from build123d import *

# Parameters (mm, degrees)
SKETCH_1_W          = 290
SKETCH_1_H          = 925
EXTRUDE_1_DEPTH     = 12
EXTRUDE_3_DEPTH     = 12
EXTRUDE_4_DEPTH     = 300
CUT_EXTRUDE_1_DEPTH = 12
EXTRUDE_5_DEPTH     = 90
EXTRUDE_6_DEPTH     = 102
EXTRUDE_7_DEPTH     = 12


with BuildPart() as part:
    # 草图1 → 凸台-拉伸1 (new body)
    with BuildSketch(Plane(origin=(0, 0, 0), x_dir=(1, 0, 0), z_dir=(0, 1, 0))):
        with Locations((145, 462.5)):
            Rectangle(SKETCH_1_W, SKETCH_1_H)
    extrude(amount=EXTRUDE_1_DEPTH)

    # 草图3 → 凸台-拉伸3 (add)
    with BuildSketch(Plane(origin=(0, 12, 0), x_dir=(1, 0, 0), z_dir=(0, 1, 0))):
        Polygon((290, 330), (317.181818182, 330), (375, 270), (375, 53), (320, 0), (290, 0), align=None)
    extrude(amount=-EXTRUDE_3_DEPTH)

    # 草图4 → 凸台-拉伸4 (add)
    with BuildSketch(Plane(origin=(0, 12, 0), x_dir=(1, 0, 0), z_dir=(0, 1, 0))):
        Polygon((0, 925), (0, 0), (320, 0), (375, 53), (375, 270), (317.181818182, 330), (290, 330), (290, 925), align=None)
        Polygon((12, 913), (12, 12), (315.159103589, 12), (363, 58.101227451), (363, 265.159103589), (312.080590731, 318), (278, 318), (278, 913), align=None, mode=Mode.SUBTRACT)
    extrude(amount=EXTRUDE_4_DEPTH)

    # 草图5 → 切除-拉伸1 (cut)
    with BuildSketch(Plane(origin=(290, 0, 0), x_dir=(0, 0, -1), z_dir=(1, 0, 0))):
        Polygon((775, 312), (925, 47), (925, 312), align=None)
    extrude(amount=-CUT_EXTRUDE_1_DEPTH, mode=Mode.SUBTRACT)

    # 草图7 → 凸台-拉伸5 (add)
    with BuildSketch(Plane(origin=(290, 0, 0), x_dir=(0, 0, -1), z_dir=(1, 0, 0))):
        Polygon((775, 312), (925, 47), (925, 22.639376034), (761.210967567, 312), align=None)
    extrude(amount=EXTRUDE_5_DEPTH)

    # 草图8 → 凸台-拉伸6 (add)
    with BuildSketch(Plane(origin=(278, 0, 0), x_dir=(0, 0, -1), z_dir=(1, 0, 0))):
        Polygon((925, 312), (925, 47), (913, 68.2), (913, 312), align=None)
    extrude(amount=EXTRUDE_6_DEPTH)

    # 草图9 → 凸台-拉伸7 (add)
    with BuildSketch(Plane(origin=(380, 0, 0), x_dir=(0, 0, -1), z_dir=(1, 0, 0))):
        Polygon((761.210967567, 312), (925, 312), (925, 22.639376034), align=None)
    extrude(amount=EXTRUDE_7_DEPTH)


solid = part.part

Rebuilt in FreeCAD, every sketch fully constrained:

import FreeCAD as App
import Part
import Sketcher

V = App.Vector
Q = App.Units.Quantity

doc = App.newDocument("Part")
body = doc.addObject("PartDesign::Body", "Body")

sketch1 = body.newObject("Sketcher::SketchObject", "Sketch")
sketch1.AttachmentSupport = (doc.getObject("XZ_Plane"), [""])
sketch1.MapMode = "FlatFace"
sketch1.addGeometry(Part.LineSegment(V(0, -925, 0), V(0, 0, 0)), False)
sketch1.addGeometry(Part.LineSegment(V(0, 0, 0), V(290, 0, 0)), False)
sketch1.addGeometry(Part.LineSegment(V(290, 0, 0), V(290, -925, 0)), False)
sketch1.addGeometry(Part.LineSegment(V(290, -925, 0), V(0, -925, 0)), False)
sketch1.addConstraint(Sketcher.Constraint("Coincident", 0, 2, 1, 1))
sketch1.addConstraint(Sketcher.Constraint("Coincident", 1, 2, 2, 1))
sketch1.addConstraint(Sketcher.Constraint("Coincident", 2, 2, 3, 1))
sketch1.addConstraint(Sketcher.Constraint("Coincident", 3, 2, 0, 1))
sketch1.addConstraint(Sketcher.Constraint("Vertical", 0))
sketch1.addConstraint(Sketcher.Constraint("Horizontal", 1))
sketch1.addConstraint(Sketcher.Constraint("Vertical", 2))
sketch1.addConstraint(Sketcher.Constraint("Horizontal", 3))
sketch1.addConstraint(Sketcher.Constraint("Coincident", 0, 2, -1, 1))
sketch1.addConstraint(Sketcher.Constraint("DistanceX", 1, 1, 1, 2, Q("290 mm")))
sketch1.addConstraint(Sketcher.Constraint("DistanceY", 0, 1, 0, 2, Q("925 mm")))
pad1 = body.newObject("PartDesign::Pad", "Pad")
pad1.Profile = sketch1
pad1.Length = 12
pad1.Reversed = True

sketch2 = body.newObject("Sketcher::SketchObject", "Sketch001")
sketch2.AttachmentSupport = (doc.getObject("XZ_Plane"), [""])
sketch2.MapMode = "FlatFace"
sketch2.AttachmentOffset = App.Placement(V(0, 0, -12), App.Rotation())
sketch2.addGeometry(Part.LineSegment(V(317.181818, -330, 0), V(290, -330, 0)), False)
sketch2.addGeometry(Part.LineSegment(V(290, -330, 0), V(290, 0, 0)), False)
sketch2.addGeometry(Part.LineSegment(V(290, 0, 0), V(320, 0, 0)), False)
sketch2.addGeometry(Part.LineSegment(V(320, 0, 0), V(375, -53, 0)), False)
sketch2.addGeometry(Part.LineSegment(V(375, -53, 0), V(375, -270, 0)), False)
sketch2.addGeometry(Part.LineSegment(V(375, -270, 0), V(317.181818, -330, 0)), False)
sketch2.addConstraint(Sketcher.Constraint("Coincident", 0, 2, 1, 1))
sketch2.addConstraint(Sketcher.Constraint("Coincident", 1, 2, 2, 1))
sketch2.addConstraint(Sketcher.Constraint("Coincident", 2, 2, 3, 1))
sketch2.addConstraint(Sketcher.Constraint("Coincident", 3, 2, 4, 1))
sketch2.addConstraint(Sketcher.Constraint("Coincident", 4, 2, 5, 1))
sketch2.addConstraint(Sketcher.Constraint("Coincident", 5, 2, 0, 1))
sketch2.addConstraint(Sketcher.Constraint("Horizontal", 0))
sketch2.addConstraint(Sketcher.Constraint("Vertical", 1))
sketch2.addConstraint(Sketcher.Constraint("Horizontal", 2))
sketch2.addConstraint(Sketcher.Constraint("Vertical", 4))
sketch2.addConstraint(Sketcher.Constraint("PointOnObject", 1, 2, -1))
sketch2.addConstraint(Sketcher.Constraint("Perpendicular", 3, 5))
sketch2.addConstraint(Sketcher.Constraint("DistanceX", 2, 1, 2, 2, Q("30 mm")))
sketch2.addConstraint(Sketcher.Constraint("DistanceY", 1, 1, 1, 2, Q("330 mm")))
sketch2.addConstraint(Sketcher.Constraint("DistanceY", 4, 2, 4, 1, Q("217 mm")))
sketch2.addConstraint(Sketcher.Constraint("DistanceX", -1, 1, 0, 2, Q("290 mm")))
sketch2.addConstraint(Sketcher.Constraint("DistanceX", -1, 1, 3, 2, Q("375 mm")))
sketch2.addConstraint(Sketcher.Constraint("DistanceY", 3, 2, -1, 1, Q("53 mm")))
pad2 = body.newObject("PartDesign::Pad", "Pad001")
pad2.Profile = sketch2
pad2.Length = 12

sketch3 = body.newObject("Sketcher::SketchObject", "Sketch002")
sketch3.AttachmentSupport = (doc.getObject("XZ_Plane"), [""])
sketch3.MapMode = "FlatFace"
sketch3.AttachmentOffset = App.Placement(V(0, 0, -12), App.Rotation())
sketch3.addGeometry(Part.LineSegment(V(0, -925, 0), V(0, 0, 0)), False)
sketch3.addGeometry(Part.LineSegment(V(0, 0, 0), V(320, 0, 0)), False)
sketch3.addGeometry(Part.LineSegment(V(320, 0, 0), V(375, -53, 0)), False)
sketch3.addGeometry(Part.LineSegment(V(375, -53, 0), V(375, -270, 0)), False)
sketch3.addGeometry(Part.LineSegment(V(375, -270, 0), V(317.181818, -330, 0)), False)
sketch3.addGeometry(Part.LineSegment(V(317.181818, -330, 0), V(290, -330, 0)), False)
sketch3.addGeometry(Part.LineSegment(V(290, -330, 0), V(290, -925, 0)), False)
sketch3.addGeometry(Part.LineSegment(V(290, -925, 0), V(0, -925, 0)), False)
sketch3.addGeometry(Part.LineSegment(V(12, -12, 0), V(12, -913, 0)), False)
sketch3.addGeometry(Part.LineSegment(V(12, -913, 0), V(278, -913, 0)), False)
sketch3.addGeometry(Part.LineSegment(V(278, -913, 0), V(278, -318, 0)), False)
sketch3.addGeometry(Part.LineSegment(V(278, -318, 0), V(312.080591, -318, 0)), False)
sketch3.addGeometry(Part.LineSegment(V(312.080591, -318, 0), V(363, -265.159104, 0)), False)
sketch3.addGeometry(Part.LineSegment(V(363, -265.159104, 0), V(363, -58.101227, 0)), False)
sketch3.addGeometry(Part.LineSegment(V(363, -58.101227, 0), V(315.159104, -12, 0)), False)
sketch3.addGeometry(Part.LineSegment(V(315.159104, -12, 0), V(12, -12, 0)), False)
sketch3.addConstraint(Sketcher.Constraint("Coincident", 0, 2, 1, 1))
sketch3.addConstraint(Sketcher.Constraint("Coincident", 1, 2, 2, 1))
sketch3.addConstraint(Sketcher.Constraint("Coincident", 2, 2, 3, 1))
sketch3.addConstraint(Sketcher.Constraint("Coincident", 3, 2, 4, 1))
sketch3.addConstraint(Sketcher.Constraint("Coincident", 4, 2, 5, 1))
sketch3.addConstraint(Sketcher.Constraint("Coincident", 5, 2, 6, 1))
sketch3.addConstraint(Sketcher.Constraint("Coincident", 6, 2, 7, 1))
sketch3.addConstraint(Sketcher.Constraint("Coincident", 7, 2, 0, 1))
sketch3.addConstraint(Sketcher.Constraint("Coincident", 8, 2, 9, 1))
sketch3.addConstraint(Sketcher.Constraint("Coincident", 9, 2, 10, 1))
sketch3.addConstraint(Sketcher.Constraint("Coincident", 10, 2, 11, 1))
sketch3.addConstraint(Sketcher.Constraint("Coincident", 11, 2, 12, 1))
sketch3.addConstraint(Sketcher.Constraint("Coincident", 12, 2, 13, 1))
sketch3.addConstraint(Sketcher.Constraint("Coincident", 13, 2, 14, 1))
sketch3.addConstraint(Sketcher.Constraint("Coincident", 14, 2, 15, 1))
sketch3.addConstraint(Sketcher.Constraint("Coincident", 15, 2, 8, 1))
sketch3.addConstraint(Sketcher.Constraint("Vertical", 0))
sketch3.addConstraint(Sketcher.Constraint("Horizontal", 1))
sketch3.addConstraint(Sketcher.Constraint("Vertical", 3))
sketch3.addConstraint(Sketcher.Constraint("Horizontal", 5))
sketch3.addConstraint(Sketcher.Constraint("Vertical", 6))
sketch3.addConstraint(Sketcher.Constraint("Horizontal", 7))
sketch3.addConstraint(Sketcher.Constraint("Vertical", 8))
sketch3.addConstraint(Sketcher.Constraint("Horizontal", 9))
sketch3.addConstraint(Sketcher.Constraint("Vertical", 10))
sketch3.addConstraint(Sketcher.Constraint("Horizontal", 11))
sketch3.addConstraint(Sketcher.Constraint("Vertical", 13))
sketch3.addConstraint(Sketcher.Constraint("Horizontal", 15))
sketch3.addConstraint(Sketcher.Constraint("Coincident", 0, 2, -1, 1))
sketch3.addConstraint(Sketcher.Constraint("Perpendicular", 2, 4))
sketch3.addConstraint(Sketcher.Constraint("Parallel", 4, 12))
sketch3.addConstraint(Sketcher.Constraint("Perpendicular", 12, 14))
sketch3.addConstraint(Sketcher.Constraint("Equal", 6, 10))
sketch3.addConstraint(Sketcher.Constraint("DistanceX", 1, 1, 1, 2, Q("320 mm")))
sketch3.addConstraint(Sketcher.Constraint("DistanceX", 7, 2, 7, 1, Q("290 mm")))
sketch3.addConstraint(Sketcher.Constraint("DistanceX", 9, 1, 9, 2, Q("266 mm")))
sketch3.addConstraint(Sketcher.Constraint("DistanceY", 0, 1, 0, 2, Q("925 mm")))
sketch3.addConstraint(Sketcher.Constraint("DistanceY", 3, 2, 3, 1, Q("217 mm")))
sketch3.addConstraint(Sketcher.Constraint("DistanceY", 6, 2, 6, 1, Q("595 mm")))
sketch3.addConstraint(Sketcher.Constraint("DistanceY", 8, 2, 8, 1, Q("901 mm")))
sketch3.addConstraint(Sketcher.Constraint("DistanceX", -1, 1, 2, 2, Q("375 mm")))
sketch3.addConstraint(Sketcher.Constraint("DistanceY", 2, 2, -1, 1, Q("53 mm")))
sketch3.addConstraint(Sketcher.Constraint("DistanceX", -1, 1, 8, 2, Q("12 mm")))
sketch3.addConstraint(Sketcher.Constraint("DistanceY", 8, 2, -1, 1, Q("913 mm")))
sketch3.addConstraint(Sketcher.Constraint("DistanceX", -1, 1, 12, 2, Q("363 mm")))
sketch3.addConstraint(Sketcher.Constraint("Distance", 14, Q("66.438502 mm")))
sketch3.addConstraint(Sketcher.Constraint("DistanceX", 11, 1, 11, 2, Q("34.080591 mm")))
pad3 = body.newObject("PartDesign::Pad", "Pad002")
pad3.Profile = sketch3
pad3.Length = 300
pad3.Reversed = True

sketch4 = body.newObject("Sketcher::SketchObject", "Sketch003")
sketch4.AttachmentSupport = (doc.getObject("YZ_Plane"), [""])
sketch4.MapMode = "FlatFace"
sketch4.AttachmentOffset = App.Placement(V(0, 0, 290), App.Rotation())
sketch4.addGeometry(Part.LineSegment(V(312, -775, 0), V(47, -925, 0)), False)
sketch4.addGeometry(Part.LineSegment(V(47, -925, 0), V(312, -925, 0)), False)
sketch4.addGeometry(Part.LineSegment(V(312, -925, 0), V(312, -775, 0)), False)
sketch4.addConstraint(Sketcher.Constraint("Coincident", 0, 2, 1, 1))
sketch4.addConstraint(Sketcher.Constraint("Coincident", 1, 2, 2, 1))
sketch4.addConstraint(Sketcher.Constraint("Coincident", 2, 2, 0, 1))
sketch4.addConstraint(Sketcher.Constraint("Horizontal", 1))
sketch4.addConstraint(Sketcher.Constraint("Vertical", 2))
sketch4.addConstraint(Sketcher.Constraint("DistanceX", 1, 1, 1, 2, Q("265 mm")))
sketch4.addConstraint(Sketcher.Constraint("DistanceY", 2, 1, 2, 2, Q("150 mm")))
sketch4.addConstraint(Sketcher.Constraint("DistanceX", -1, 1, 0, 2, Q("47 mm")))
sketch4.addConstraint(Sketcher.Constraint("DistanceY", 0, 2, -1, 1, Q("925 mm")))
pocket1 = body.newObject("PartDesign::Pocket", "Pocket")
pocket1.Profile = sketch4
pocket1.Length = 12

sketch5 = body.newObject("Sketcher::SketchObject", "Sketch004")
sketch5.AttachmentSupport = (doc.getObject("YZ_Plane"), [""])
sketch5.MapMode = "FlatFace"
sketch5.AttachmentOffset = App.Placement(V(0, 0, 290), App.Rotation())
sketch5.addGeometry(Part.LineSegment(V(47, -925, 0), V(312, -775, 0)), False)
sketch5.addGeometry(Part.LineSegment(V(312, -775, 0), V(312, -761.210968, 0)), False)
sketch5.addGeometry(Part.LineSegment(V(312, -761.210968, 0), V(22.639376, -925, 0)), False)
sketch5.addGeometry(Part.LineSegment(V(22.639376, -925, 0), V(47, -925, 0)), False)
sketch5.addConstraint(Sketcher.Constraint("Coincident", 0, 2, 1, 1))
sketch5.addConstraint(Sketcher.Constraint("Coincident", 1, 2, 2, 1))
sketch5.addConstraint(Sketcher.Constraint("Coincident", 2, 2, 3, 1))
sketch5.addConstraint(Sketcher.Constraint("Coincident", 3, 2, 0, 1))
sketch5.addConstraint(Sketcher.Constraint("Vertical", 1))
sketch5.addConstraint(Sketcher.Constraint("Horizontal", 3))
sketch5.addConstraint(Sketcher.Constraint("Parallel", 0, 2))
sketch5.addConstraint(Sketcher.Constraint("DistanceX", -1, 1, 0, 2, Q("312 mm")))
sketch5.addConstraint(Sketcher.Constraint("DistanceY", 0, 2, -1, 1, Q("775 mm")))
sketch5.addConstraint(Sketcher.Constraint("DistanceY", 2, 2, -1, 1, Q("925 mm")))
sketch5.addConstraint(Sketcher.Constraint("DistanceX", -1, 1, 3, 2, Q("47 mm")))
sketch5.addConstraint(Sketcher.Constraint("DistanceX", 3, 1, 3, 2, Q("24.360624 mm")))
pad4 = body.newObject("PartDesign::Pad", "Pad003")
pad4.Profile = sketch5
pad4.Length = 90

sketch6 = body.newObject("Sketcher::SketchObject", "Sketch005")
sketch6.AttachmentSupport = (doc.getObject("YZ_Plane"), [""])
sketch6.MapMode = "FlatFace"
sketch6.AttachmentOffset = App.Placement(V(0, 0, 278), App.Rotation())
sketch6.addGeometry(Part.LineSegment(V(47, -925, 0), V(312, -925, 0)), False)
sketch6.addGeometry(Part.LineSegment(V(312, -925, 0), V(312, -913, 0)), False)
sketch6.addGeometry(Part.LineSegment(V(312, -913, 0), V(68.2, -913, 0)), False)
sketch6.addGeometry(Part.LineSegment(V(68.2, -913, 0), V(47, -925, 0)), False)
sketch6.addConstraint(Sketcher.Constraint("Coincident", 0, 2, 1, 1))
sketch6.addConstraint(Sketcher.Constraint("Coincident", 1, 2, 2, 1))
sketch6.addConstraint(Sketcher.Constraint("Coincident", 2, 2, 3, 1))
sketch6.addConstraint(Sketcher.Constraint("Coincident", 3, 2, 0, 1))
sketch6.addConstraint(Sketcher.Constraint("Horizontal", 0))
sketch6.addConstraint(Sketcher.Constraint("Vertical", 1))
sketch6.addConstraint(Sketcher.Constraint("Horizontal", 2))
sketch6.addConstraint(Sketcher.Constraint("DistanceX", 0, 1, 0, 2, Q("265 mm")))
sketch6.addConstraint(Sketcher.Constraint("DistanceY", 1, 1, 1, 2, Q("12 mm")))
sketch6.addConstraint(Sketcher.Constraint("DistanceX", 2, 2, 2, 1, Q("243.8 mm")))
sketch6.addConstraint(Sketcher.Constraint("DistanceX", -1, 1, 0, 2, Q("312 mm")))
sketch6.addConstraint(Sketcher.Constraint("DistanceY", 0, 2, -1, 1, Q("925 mm")))
pad5 = body.newObject("PartDesign::Pad", "Pad004")
pad5.Profile = sketch6
pad5.Length = 102

sketch7 = body.newObject("Sketcher::SketchObject", "Sketch006")
sketch7.AttachmentSupport = (doc.getObject("YZ_Plane"), [""])
sketch7.MapMode = "FlatFace"
sketch7.AttachmentOffset = App.Placement(V(0, 0, 380), App.Rotation())
sketch7.addGeometry(Part.LineSegment(V(312, -925, 0), V(312, -761.210968, 0)), False)
sketch7.addGeometry(Part.LineSegment(V(312, -761.210968, 0), V(22.639376, -925, 0)), False)
sketch7.addGeometry(Part.LineSegment(V(22.639376, -925, 0), V(312, -925, 0)), False)
sketch7.addConstraint(Sketcher.Constraint("Coincident", 0, 2, 1, 1))
sketch7.addConstraint(Sketcher.Constraint("Coincident", 1, 2, 2, 1))
sketch7.addConstraint(Sketcher.Constraint("Coincident", 2, 2, 0, 1))
sketch7.addConstraint(Sketcher.Constraint("Vertical", 0))
sketch7.addConstraint(Sketcher.Constraint("Horizontal", 2))
sketch7.addConstraint(Sketcher.Constraint("DistanceX", -1, 1, 0, 2, Q("312 mm")))
sketch7.addConstraint(Sketcher.Constraint("DistanceY", 1, 2, -1, 1, Q("925 mm")))
sketch7.addConstraint(Sketcher.Constraint("DistanceX", 2, 1, 2, 2, Q("289.360624 mm")))
sketch7.addConstraint(Sketcher.Constraint("DistanceY", 0, 1, 0, 2, Q("163.789032 mm")))
pad6 = body.newObject("PartDesign::Pad", "Pad005")
pad6.Profile = sketch7
pad6.Length = 12

doc.recompute()
